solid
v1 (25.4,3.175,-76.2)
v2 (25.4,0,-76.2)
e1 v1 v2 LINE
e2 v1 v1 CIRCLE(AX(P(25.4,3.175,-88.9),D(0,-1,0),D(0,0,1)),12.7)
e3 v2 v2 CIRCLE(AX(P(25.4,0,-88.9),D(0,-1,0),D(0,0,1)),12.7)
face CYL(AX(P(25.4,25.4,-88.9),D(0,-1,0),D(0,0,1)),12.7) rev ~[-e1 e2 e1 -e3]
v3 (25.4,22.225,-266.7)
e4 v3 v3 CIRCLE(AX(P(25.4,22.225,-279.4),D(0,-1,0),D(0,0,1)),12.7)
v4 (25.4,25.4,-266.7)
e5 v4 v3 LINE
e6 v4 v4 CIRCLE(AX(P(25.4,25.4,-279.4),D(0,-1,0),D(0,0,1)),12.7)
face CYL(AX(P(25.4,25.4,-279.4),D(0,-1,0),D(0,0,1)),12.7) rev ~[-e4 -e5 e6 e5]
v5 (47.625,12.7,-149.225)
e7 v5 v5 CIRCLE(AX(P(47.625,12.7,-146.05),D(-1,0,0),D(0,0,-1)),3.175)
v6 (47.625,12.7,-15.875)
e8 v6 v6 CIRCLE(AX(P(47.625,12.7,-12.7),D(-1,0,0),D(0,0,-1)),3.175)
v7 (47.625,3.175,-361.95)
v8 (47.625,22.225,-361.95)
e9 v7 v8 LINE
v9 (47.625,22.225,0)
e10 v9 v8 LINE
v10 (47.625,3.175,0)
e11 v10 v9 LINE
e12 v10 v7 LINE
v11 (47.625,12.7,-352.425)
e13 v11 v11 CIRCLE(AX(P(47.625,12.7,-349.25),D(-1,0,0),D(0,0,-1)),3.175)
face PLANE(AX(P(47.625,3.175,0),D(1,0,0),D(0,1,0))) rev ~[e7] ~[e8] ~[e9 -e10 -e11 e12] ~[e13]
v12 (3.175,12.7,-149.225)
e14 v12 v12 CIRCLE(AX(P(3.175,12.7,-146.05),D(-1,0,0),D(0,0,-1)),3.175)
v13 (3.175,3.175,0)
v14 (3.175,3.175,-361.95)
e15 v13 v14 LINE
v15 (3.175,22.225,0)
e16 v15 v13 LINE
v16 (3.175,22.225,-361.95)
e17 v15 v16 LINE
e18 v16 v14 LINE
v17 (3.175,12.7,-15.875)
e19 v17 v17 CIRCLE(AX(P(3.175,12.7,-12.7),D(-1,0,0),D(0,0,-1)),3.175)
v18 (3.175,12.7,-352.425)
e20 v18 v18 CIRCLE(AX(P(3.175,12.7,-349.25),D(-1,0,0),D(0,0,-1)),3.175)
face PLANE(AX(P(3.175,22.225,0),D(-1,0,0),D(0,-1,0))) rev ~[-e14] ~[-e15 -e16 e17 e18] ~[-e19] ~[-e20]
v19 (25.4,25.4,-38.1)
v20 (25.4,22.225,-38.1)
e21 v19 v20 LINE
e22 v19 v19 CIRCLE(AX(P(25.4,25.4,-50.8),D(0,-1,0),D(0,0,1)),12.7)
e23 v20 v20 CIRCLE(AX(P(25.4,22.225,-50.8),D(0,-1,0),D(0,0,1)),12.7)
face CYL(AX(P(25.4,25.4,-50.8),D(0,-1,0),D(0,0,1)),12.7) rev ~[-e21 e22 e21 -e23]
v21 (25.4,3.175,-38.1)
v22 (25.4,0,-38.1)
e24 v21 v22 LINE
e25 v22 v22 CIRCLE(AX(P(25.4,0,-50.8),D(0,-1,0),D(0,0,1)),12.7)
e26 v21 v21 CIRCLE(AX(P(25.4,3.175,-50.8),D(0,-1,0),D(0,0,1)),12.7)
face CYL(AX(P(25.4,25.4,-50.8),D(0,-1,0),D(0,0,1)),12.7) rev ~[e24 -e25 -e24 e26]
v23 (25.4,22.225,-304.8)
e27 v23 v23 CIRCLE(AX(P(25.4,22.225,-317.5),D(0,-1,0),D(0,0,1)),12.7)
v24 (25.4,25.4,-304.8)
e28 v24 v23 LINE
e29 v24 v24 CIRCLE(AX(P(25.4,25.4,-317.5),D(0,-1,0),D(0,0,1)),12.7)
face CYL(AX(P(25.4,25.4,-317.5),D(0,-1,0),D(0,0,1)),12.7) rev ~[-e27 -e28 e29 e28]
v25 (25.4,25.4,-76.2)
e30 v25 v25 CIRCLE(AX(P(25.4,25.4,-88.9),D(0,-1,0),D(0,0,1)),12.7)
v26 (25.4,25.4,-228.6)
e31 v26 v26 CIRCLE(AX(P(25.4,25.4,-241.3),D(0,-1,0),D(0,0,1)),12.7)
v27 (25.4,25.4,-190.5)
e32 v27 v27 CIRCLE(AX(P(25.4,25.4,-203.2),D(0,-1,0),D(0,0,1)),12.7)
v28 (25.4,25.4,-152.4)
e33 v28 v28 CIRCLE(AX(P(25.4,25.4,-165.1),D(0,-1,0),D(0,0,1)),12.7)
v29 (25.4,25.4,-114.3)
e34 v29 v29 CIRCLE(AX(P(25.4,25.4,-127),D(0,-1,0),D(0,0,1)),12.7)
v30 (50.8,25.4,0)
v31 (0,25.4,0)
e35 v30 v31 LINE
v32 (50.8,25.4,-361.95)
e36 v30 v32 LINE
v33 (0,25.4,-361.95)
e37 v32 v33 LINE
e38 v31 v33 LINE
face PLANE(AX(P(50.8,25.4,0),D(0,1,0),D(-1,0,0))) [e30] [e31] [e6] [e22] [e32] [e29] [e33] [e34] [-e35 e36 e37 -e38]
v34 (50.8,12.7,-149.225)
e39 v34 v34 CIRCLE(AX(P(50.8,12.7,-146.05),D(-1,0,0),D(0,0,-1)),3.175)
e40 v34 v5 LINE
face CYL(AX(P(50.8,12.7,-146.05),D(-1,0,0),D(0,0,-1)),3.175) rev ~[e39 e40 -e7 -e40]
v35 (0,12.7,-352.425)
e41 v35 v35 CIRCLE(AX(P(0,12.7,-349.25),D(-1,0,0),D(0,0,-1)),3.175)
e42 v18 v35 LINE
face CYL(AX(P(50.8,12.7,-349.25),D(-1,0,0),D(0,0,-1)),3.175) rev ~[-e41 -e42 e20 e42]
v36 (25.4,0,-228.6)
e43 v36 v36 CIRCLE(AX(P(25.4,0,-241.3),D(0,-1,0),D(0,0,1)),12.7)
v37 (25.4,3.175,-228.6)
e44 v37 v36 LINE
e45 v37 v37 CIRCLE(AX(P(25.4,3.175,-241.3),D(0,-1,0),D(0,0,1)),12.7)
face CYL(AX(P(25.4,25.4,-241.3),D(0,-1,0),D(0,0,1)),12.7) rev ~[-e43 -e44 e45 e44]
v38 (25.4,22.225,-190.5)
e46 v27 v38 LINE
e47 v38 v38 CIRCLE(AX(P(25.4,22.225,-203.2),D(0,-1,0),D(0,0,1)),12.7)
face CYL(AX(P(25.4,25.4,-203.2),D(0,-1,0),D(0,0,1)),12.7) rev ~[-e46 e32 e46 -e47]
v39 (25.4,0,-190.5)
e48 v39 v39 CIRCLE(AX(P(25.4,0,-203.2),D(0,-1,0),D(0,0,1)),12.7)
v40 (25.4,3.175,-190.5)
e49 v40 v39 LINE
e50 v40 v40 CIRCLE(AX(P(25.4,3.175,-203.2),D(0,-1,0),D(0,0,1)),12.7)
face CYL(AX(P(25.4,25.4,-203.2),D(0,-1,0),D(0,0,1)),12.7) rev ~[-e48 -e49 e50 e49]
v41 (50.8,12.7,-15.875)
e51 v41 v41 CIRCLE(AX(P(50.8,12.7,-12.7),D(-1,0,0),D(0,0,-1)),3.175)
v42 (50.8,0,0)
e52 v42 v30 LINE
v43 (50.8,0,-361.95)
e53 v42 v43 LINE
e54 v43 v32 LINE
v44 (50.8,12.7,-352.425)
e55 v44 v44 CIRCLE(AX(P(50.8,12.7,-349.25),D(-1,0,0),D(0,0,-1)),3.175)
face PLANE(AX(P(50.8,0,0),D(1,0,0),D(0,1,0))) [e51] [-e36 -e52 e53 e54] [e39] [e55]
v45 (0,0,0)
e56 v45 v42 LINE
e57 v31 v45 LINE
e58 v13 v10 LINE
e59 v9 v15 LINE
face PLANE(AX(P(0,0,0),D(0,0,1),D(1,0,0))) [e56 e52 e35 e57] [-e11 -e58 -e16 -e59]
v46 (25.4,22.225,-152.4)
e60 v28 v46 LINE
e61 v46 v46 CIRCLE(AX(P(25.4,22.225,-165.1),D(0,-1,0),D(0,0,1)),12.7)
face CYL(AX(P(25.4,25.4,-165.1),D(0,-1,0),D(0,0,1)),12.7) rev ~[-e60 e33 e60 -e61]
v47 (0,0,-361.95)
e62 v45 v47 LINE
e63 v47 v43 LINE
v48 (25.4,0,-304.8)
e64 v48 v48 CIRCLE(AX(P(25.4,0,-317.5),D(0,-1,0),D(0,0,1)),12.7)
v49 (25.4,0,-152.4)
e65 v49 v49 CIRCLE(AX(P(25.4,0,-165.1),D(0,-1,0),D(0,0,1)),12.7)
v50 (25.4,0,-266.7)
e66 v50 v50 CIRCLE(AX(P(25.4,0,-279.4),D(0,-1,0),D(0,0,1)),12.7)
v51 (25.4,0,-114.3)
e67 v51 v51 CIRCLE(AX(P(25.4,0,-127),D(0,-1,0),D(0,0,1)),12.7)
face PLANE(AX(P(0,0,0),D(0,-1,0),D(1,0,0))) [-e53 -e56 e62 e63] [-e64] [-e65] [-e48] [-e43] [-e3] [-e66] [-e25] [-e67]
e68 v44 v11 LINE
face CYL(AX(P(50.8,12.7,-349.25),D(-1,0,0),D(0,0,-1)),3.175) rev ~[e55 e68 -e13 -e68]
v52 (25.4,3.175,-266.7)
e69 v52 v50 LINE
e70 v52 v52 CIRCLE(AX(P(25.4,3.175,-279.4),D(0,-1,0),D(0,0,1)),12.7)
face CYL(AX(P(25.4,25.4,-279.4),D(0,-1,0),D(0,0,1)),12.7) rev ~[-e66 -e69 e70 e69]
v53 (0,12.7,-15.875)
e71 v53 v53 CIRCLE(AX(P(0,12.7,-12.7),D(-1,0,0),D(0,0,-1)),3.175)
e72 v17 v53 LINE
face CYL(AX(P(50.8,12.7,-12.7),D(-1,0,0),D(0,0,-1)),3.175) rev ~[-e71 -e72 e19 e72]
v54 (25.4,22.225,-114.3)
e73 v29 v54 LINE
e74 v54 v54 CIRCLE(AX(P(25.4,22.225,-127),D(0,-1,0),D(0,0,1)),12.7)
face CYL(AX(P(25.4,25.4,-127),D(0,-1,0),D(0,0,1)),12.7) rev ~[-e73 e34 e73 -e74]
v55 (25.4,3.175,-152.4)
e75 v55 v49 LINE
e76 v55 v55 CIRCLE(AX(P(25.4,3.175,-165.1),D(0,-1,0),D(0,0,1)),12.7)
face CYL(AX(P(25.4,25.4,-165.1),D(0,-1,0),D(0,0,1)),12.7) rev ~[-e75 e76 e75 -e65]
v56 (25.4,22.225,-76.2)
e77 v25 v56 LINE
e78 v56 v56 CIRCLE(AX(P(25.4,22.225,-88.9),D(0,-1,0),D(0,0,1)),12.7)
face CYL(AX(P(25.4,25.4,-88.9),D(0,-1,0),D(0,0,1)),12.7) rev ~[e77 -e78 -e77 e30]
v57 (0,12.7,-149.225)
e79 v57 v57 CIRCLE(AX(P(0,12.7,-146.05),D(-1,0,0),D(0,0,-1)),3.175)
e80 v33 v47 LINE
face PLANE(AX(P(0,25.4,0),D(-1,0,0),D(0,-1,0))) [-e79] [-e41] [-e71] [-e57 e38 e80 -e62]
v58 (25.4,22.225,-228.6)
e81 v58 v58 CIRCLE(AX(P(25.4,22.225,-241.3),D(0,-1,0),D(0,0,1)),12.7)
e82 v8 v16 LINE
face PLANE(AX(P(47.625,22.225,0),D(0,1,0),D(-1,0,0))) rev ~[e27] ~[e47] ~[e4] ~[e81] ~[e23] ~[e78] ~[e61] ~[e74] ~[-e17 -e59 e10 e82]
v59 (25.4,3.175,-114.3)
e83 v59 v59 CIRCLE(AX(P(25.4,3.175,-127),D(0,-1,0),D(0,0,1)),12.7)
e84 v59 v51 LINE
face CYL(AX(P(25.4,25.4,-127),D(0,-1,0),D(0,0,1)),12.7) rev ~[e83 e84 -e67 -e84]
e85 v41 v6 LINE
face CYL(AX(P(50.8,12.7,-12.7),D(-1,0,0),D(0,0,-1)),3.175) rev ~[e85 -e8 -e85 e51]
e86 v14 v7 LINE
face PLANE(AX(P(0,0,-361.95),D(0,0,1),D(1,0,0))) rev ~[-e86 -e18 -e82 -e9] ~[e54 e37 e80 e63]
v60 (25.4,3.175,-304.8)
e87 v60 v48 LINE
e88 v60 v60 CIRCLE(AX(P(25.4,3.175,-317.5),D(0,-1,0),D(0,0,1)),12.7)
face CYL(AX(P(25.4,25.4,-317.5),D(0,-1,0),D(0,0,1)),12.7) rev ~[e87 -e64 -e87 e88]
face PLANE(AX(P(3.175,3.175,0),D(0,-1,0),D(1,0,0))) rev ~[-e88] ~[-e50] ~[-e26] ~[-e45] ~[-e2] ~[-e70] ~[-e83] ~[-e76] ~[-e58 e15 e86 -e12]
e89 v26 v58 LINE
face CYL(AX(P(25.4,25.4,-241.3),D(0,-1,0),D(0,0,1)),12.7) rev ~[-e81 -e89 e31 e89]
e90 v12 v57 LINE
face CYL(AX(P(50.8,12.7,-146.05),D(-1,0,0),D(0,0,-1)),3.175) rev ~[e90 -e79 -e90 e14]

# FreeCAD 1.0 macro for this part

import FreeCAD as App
import Part
import Sketcher
Q = App.Units.Quantity


def add_polygon(sketch, points):
    """Adds a closed chain of lines whose ends are joined by coincident constraints."""
    first, n = sketch.GeometryCount, len(points)
    for a, b in zip(points, points[1:] + points[:1]):
        sketch.addGeometry(Part.LineSegment(App.Vector(*a, 0), App.Vector(*b, 0)), False)
    for i in range(n):
        sketch.addConstraint(Sketcher.Constraint("Coincident", first + i, 2, first + (i + 1) % n, 1))

doc = App.newDocument("Part")
body = doc.addObject("PartDesign::Body", "Body")

# Sketch on XY plane
sketch1 = body.newObject("Sketcher::SketchObject", "Sketch")
sketch1.AttachmentSupport = (doc.getObject("XY_Plane"), [""])
sketch1.MapMode = "FlatFace"
add_polygon(sketch1, [(0, 25), (0, 0), (51, 0), (51, 25)])  # lines 0-3
add_polygon(sketch1, [(48, 3), (3, 3), (3, 22), (48, 22)])  # lines 4-7
sketch1.addConstraint([
    Sketcher.Constraint("Vertical", 0),
    Sketcher.Constraint("Horizontal", 1),
    Sketcher.Constraint("Vertical", 2),
    Sketcher.Constraint("Horizontal", 3),
    Sketcher.Constraint("Horizontal", 4),
    Sketcher.Constraint("Vertical", 5),
    Sketcher.Constraint("Horizontal", 6),
    Sketcher.Constraint("Vertical", 7),
    Sketcher.Constraint("Coincident", 0, 2, -1, 1),
    Sketcher.Constraint("DistanceX", 1, 1, 1, 2, Q("2 in")),
    Sketcher.Constraint("DistanceY", 0, 2, 0, 1, Q("1 in")),
    Sketcher.Constraint("DistanceX", 4, 2, 4, 1, Q("1.75 in")),
    Sketcher.Constraint("DistanceY", 5, 1, 5, 2, Q("0.75 in")),
    Sketcher.Constraint("DistanceX", -1, 1, 4, 2, Q("0.125 in")),
    Sketcher.Constraint("DistanceY", -1, 1, 4, 2, Q("0.125 in")),
])
pad1 = body.newObject("PartDesign::Pad", "Pad")
pad1.Profile = sketch1
pad1.Length = Q("14.25 in")
pad1.Reversed = True

# Sketch on YZ plane
sketch2 = body.newObject("Sketcher::SketchObject", "Sketch001")
sketch2.AttachmentSupport = (doc.getObject("YZ_Plane"), [""])
sketch2.MapMode = "FlatFace"
sketch2.AttachmentOffset = App.Placement(App.Vector(0, 0, 2 * 25.4), App.Rotation())
sketch2.addGeometry([
    Part.Circle(App.Vector(12.7, -146.1, 0), App.Vector(0, 0, 1), 3.2),
    Part.Circle(App.Vector(12.7, -349.2, 0), App.Vector(0, 0, 1), 3.2),
], False)
sketch2.addConstraint([
    Sketcher.Constraint("Equal", 0, 1),
    Sketcher.Constraint("Vertical", 0, 3, 1, 3),
    Sketcher.Constraint("Diameter", 0, Q("0.25 in")),
    Sketcher.Constraint("DistanceY", 1, 3, 0, 3, Q("8 in")),
    Sketcher.Constraint("DistanceX", -1, 1, 0, 3, Q("0.5 in")),
    Sketcher.Constraint("DistanceY", 0, 3, -1, 1, Q("5.75 in")),
])
doc.recompute()
hole = body.newObject("PartDesign::Hole", "Hole")
hole.Profile = sketch2
hole.ThreadType = "None"
hole.Diameter = Q("0.25 in")
hole.DepthType = "ThroughAll"

# Sketch on YZ plane
sketch3 = body.newObject("Sketcher::SketchObject", "Sketch002")
sketch3.AttachmentSupport = (doc.getObject("YZ_Plane"), [""])
sketch3.MapMode = "FlatFace"
sketch3.AttachmentOffset = App.Placement(App.Vector(0, 0, 2 * 25.4), App.Rotation())
sketch3.addGeometry(Part.Circle(App.Vector(12.7, -12.7, 0), App.Vector(0, 0, 1), 3.2), False)
sketch3.addConstraint([
    Sketcher.Constraint("Diameter", 0, Q("0.25 in")),
    Sketcher.Constraint("DistanceX", -1, 1, 0, 3, Q("0.5 in")),
    Sketcher.Constraint("DistanceY", 0, 3, -1, 1, Q("0.5 in")),
])
doc.recompute()
hole2 = body.newObject("PartDesign::Hole", "Hole001")
hole2.Profile = sketch3
hole2.ThreadType = "None"
hole2.Diameter = Q("0.25 in")
hole2.DepthType = "ThroughAll"

# Sketch on XZ plane
sketch4 = body.newObject("Sketcher::SketchObject", "Sketch003")
sketch4.AttachmentSupport = (doc.getObject("XZ_Plane"), [""])
sketch4.MapMode = "FlatFace"
sketch4.AttachmentOffset = App.Placement(App.Vector(0, 0, -1 * 25.4), App.Rotation())
sketch4.addGeometry(Part.Circle(App.Vector(25, -51, 0), App.Vector(0, 0, 1), 13), False)
sketch4.addConstraint([
    Sketcher.Constraint("Diameter", 0, Q("1 in")),
    Sketcher.Constraint("DistanceX", -1, 1, 0, 3, Q("1 in")),
    Sketcher.Constraint("DistanceY", 0, 3, -1, 1, Q("2 in")),
])
doc.recompute()
hole3 = body.newObject("PartDesign::Hole", "Hole002")
hole3.Profile = sketch4
hole3.ThreadType = "None"
hole3.Diameter = Q("1 in")
hole3.DepthType = "ThroughAll"
hole3.Reversed = True
doc.recompute()

linearpattern = body.newObject("PartDesign::LinearPattern", "LinearPattern")
linearpattern.Originals = [hole3]
linearpattern.Direction = (doc.getObject("Z_Axis"), [""])
linearpattern.Mode = "offset"
linearpattern.Offset = Q("1.5 in")
linearpattern.Occurrences = 8
linearpattern.Reversed = True
body.Tip = linearpattern

doc.recompute()
